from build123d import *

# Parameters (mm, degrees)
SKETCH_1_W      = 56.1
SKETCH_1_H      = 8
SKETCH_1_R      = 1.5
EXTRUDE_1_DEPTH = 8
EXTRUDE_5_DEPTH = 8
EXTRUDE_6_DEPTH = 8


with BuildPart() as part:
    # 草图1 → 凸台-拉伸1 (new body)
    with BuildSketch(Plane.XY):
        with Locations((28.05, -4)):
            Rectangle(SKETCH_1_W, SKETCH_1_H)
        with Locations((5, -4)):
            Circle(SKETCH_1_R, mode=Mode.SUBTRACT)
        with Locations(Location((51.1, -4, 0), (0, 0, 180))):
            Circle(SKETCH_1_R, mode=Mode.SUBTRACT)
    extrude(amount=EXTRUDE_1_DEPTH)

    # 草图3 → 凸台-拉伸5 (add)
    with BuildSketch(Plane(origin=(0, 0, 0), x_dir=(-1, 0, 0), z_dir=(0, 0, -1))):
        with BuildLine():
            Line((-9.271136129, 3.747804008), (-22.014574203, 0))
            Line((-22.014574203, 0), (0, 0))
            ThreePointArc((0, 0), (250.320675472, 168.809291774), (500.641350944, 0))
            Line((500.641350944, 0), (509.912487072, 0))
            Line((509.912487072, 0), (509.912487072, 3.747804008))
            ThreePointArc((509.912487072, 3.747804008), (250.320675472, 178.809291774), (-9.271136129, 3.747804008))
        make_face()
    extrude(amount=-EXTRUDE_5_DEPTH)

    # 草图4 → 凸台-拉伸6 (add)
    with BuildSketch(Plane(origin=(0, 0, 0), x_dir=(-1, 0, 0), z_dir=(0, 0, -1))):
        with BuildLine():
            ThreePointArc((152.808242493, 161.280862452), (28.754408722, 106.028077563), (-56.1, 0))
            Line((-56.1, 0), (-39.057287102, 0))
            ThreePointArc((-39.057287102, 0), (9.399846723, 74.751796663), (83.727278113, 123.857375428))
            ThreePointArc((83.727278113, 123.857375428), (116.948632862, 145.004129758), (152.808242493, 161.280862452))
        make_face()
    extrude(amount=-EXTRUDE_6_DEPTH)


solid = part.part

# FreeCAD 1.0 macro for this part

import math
import FreeCAD as App
import Part
import Sketcher
from FreeCAD import Vector
Q = App.Units.Quantity

doc = App.newDocument("Part")
body = doc.addObject("PartDesign::Body", "Body")

sketch1 = body.newObject("Sketcher::SketchObject", "Sketch")
sketch1.AttachmentSupport = (doc.getObject("XY_Plane"), [""])
sketch1.MapMode = "FlatFace"
sketch1.addGeometry([
    Part.LineSegment(Vector(0, 0, 0), Vector(0, -8, 0)),
    Part.LineSegment(Vector(0, -8, 0), Vector(56.1, -8, 0)),
    Part.LineSegment(Vector(56.1, -8, 0), Vector(56.1, 0, 0)),
    Part.LineSegment(Vector(56.1, 0, 0), Vector(0, 0, 0)),
    Part.Circle(Vector(5, -4, 0), Vector(0, 0, 1), 1.5),
    Part.Circle(Vector(51.1, -4, 0), Vector(0, 0, 1), 1.5),
], False)
sketch1.addConstraint([
    Sketcher.Constraint("Coincident", 0, 2, 1, 1),
    Sketcher.Constraint("Coincident", 1, 2, 2, 1),
    Sketcher.Constraint("Coincident", 2, 2, 3, 1),
    Sketcher.Constraint("Coincident", 3, 2, 0, 1),
    Sketcher.Constraint("Vertical", 0),
    Sketcher.Constraint("Horizontal", 1),
    Sketcher.Constraint("Vertical", 2),
    Sketcher.Constraint("Horizontal", 3),
    Sketcher.Constraint("Coincident", 3, 2, -1, 1),
    Sketcher.Constraint("Equal", 4, 5),
    Sketcher.Constraint("Horizontal", 4, 3, 5, 3),
    Sketcher.Constraint("Diameter", 4, Q("3 mm")),
    Sketcher.Constraint("DistanceY", 0, 2, 0, 1, Q("8 mm")),
    Sketcher.Constraint("DistanceX", 1, 1, 1, 2, Q("56.1 mm")),
    Sketcher.Constraint("DistanceX", -1, 1, 4, 3, Q("5 mm")),
    Sketcher.Constraint("DistanceY", 4, 3, -1, 1, Q("4 mm")),
    Sketcher.Constraint("DistanceX", 5, 3, 1, 2, Q("5 mm")),
])
pad1 = body.newObject("PartDesign::Pad", "Pad")
pad1.Profile = sketch1
pad1.Length = 8

sketch2 = body.newObject("Sketcher::SketchObject", "Sketch001")
sketch2.AttachmentSupport = (doc.getObject("XY_Plane"), [""])
sketch2.MapMode = "FlatFace"
sketch2.addGeometry([
    Part.LineSegment(Vector(9.3, 3.7, 0), Vector(22, 0, 0)),
    Part.LineSegment(Vector(22, 0, 0), Vector(0, 0, 0)),
    Part.ArcOfCircle(Part.Circle(Vector(-250.3, -101.2, 0), Vector(0, 0, 1), 270), math.radians(22), math.radians(158)),
    Part.LineSegment(Vector(-500.6, 0, 0), Vector(-509.9, 0, 0)),
    Part.LineSegment(Vector(-509.9, 0, 0), Vector(-509.9, 3.7, 0)),
    Part.ArcOfCircle(Part.Circle(Vector(-250.3, -101.2, 0), Vector(0, 0, 1), 280), math.radians(22), math.radians(158)),
], False)
sketch2.addConstraint([
    Sketcher.Constraint("Coincident", 0, 2, 1, 1),
    Sketcher.Constraint("Coincident", 1, 2, 2, 1),
    Sketcher.Constraint("Coincident", 2, 2, 3, 1),
    Sketcher.Constraint("Coincident", 3, 2, 4, 1),
    Sketcher.Constraint("Coincident", 4, 2, 5, 2),
    Sketcher.Constraint("Coincident", 5, 1, 0, 1),
    Sketcher.Constraint("Horizontal", 1),
    Sketcher.Constraint("Horizontal", 3),
    Sketcher.Constraint("Vertical", 4),
    Sketcher.Constraint("Coincident", 1, 2, -1, 1),
    Sketcher.Constraint("Coincident", 5, 3, 2, 3),
    Sketcher.Constraint("PointOnObject", 2, 2, -1),
    Sketcher.Constraint("Horizontal", 4, 2, 5, 1),
    Sketcher.Constraint("Radius", 2, Q("270 mm")),
    Sketcher.Constraint("Radius", 5, Q("280 mm")),
    Sketcher.Constraint("Distance", 0, Q("13.283119 mm")),
    Sketcher.Constraint("DistanceX", 1, 2, 1, 1, Q("22.014574 mm")),
    Sketcher.Constraint("DistanceY", 2, 3, -1, 1, Q("101.190708 mm")),
])
pad2 = body.newObject("PartDesign::Pad", "Pad001")
pad2.Profile = sketch2
pad2.Length = 8

sketch3 = body.newObject("Sketcher::SketchObject", "Sketch002")
sketch3.AttachmentSupport = (doc.getObject("XY_Plane"), [""])
sketch3.MapMode = "FlatFace"
sketch3.addGeometry([
    Part.ArcOfCircle(Part.Circle(Vector(-204, -122, 0), Vector(0, 0, 1), 288), math.radians(25), math.radians(80)),
    Part.LineSegment(Vector(56, 0, 0), Vector(39, 0, 0)),
    Part.ArcOfCircle(Part.Circle(Vector(-164, -79, 0), Vector(0, 0, 1), 218), math.radians(21), math.radians(68)),
    Part.ArcOfCircle(Part.Circle(Vector(-250, -101, 0), Vector(0, 0, 1), 280), math.radians(53.49), math.radians(69.62)),
], False)
sketch3.addConstraint([
    Sketcher.Constraint("Coincident", 0, 1, 1, 1),
    Sketcher.Constraint("Coincident", 1, 2, 2, 1),
    Sketcher.Constraint("Coincident", 2, 2, 3, 1),
    Sketcher.Constraint("Coincident", 3, 2, 0, 2),
    Sketcher.Constraint("Horizontal", 1),
    Sketcher.Constraint("PointOnObject", 0, 1, -1),
    Sketcher.Constraint("Radius", 3, Q("280 mm")),
    Sketcher.Constraint("DistanceX", -1, 1, 0, 1, Q("56.1 mm")),
    Sketcher.Constraint("Radius", 0, Q("287.503323 mm")),
    Sketcher.Constraint("Radius", 2, Q("217.852205 mm")),
    Sketcher.Constraint("DistanceX", 2, 3, -1, 1, Q("164.113198 mm")),
    Sketcher.Constraint("DistanceX", 1, 2, 1, 1, Q("17.042713 mm")),
    Sketcher.Constraint("DistanceY", 3, 3, -1, 1, Q("101.190708 mm")),
    Sketcher.Constraint("DistanceX", 2, 2, -1, 1, Q("83.727278 mm")),
    Sketcher.Constraint("DistanceX", 0, 3, 1, 2, Q("243.503759 mm")),
])
pad3 = body.newObject("PartDesign::Pad", "Pad002")
pad3.Profile = sketch3
pad3.Length = 8

doc.recompute()
